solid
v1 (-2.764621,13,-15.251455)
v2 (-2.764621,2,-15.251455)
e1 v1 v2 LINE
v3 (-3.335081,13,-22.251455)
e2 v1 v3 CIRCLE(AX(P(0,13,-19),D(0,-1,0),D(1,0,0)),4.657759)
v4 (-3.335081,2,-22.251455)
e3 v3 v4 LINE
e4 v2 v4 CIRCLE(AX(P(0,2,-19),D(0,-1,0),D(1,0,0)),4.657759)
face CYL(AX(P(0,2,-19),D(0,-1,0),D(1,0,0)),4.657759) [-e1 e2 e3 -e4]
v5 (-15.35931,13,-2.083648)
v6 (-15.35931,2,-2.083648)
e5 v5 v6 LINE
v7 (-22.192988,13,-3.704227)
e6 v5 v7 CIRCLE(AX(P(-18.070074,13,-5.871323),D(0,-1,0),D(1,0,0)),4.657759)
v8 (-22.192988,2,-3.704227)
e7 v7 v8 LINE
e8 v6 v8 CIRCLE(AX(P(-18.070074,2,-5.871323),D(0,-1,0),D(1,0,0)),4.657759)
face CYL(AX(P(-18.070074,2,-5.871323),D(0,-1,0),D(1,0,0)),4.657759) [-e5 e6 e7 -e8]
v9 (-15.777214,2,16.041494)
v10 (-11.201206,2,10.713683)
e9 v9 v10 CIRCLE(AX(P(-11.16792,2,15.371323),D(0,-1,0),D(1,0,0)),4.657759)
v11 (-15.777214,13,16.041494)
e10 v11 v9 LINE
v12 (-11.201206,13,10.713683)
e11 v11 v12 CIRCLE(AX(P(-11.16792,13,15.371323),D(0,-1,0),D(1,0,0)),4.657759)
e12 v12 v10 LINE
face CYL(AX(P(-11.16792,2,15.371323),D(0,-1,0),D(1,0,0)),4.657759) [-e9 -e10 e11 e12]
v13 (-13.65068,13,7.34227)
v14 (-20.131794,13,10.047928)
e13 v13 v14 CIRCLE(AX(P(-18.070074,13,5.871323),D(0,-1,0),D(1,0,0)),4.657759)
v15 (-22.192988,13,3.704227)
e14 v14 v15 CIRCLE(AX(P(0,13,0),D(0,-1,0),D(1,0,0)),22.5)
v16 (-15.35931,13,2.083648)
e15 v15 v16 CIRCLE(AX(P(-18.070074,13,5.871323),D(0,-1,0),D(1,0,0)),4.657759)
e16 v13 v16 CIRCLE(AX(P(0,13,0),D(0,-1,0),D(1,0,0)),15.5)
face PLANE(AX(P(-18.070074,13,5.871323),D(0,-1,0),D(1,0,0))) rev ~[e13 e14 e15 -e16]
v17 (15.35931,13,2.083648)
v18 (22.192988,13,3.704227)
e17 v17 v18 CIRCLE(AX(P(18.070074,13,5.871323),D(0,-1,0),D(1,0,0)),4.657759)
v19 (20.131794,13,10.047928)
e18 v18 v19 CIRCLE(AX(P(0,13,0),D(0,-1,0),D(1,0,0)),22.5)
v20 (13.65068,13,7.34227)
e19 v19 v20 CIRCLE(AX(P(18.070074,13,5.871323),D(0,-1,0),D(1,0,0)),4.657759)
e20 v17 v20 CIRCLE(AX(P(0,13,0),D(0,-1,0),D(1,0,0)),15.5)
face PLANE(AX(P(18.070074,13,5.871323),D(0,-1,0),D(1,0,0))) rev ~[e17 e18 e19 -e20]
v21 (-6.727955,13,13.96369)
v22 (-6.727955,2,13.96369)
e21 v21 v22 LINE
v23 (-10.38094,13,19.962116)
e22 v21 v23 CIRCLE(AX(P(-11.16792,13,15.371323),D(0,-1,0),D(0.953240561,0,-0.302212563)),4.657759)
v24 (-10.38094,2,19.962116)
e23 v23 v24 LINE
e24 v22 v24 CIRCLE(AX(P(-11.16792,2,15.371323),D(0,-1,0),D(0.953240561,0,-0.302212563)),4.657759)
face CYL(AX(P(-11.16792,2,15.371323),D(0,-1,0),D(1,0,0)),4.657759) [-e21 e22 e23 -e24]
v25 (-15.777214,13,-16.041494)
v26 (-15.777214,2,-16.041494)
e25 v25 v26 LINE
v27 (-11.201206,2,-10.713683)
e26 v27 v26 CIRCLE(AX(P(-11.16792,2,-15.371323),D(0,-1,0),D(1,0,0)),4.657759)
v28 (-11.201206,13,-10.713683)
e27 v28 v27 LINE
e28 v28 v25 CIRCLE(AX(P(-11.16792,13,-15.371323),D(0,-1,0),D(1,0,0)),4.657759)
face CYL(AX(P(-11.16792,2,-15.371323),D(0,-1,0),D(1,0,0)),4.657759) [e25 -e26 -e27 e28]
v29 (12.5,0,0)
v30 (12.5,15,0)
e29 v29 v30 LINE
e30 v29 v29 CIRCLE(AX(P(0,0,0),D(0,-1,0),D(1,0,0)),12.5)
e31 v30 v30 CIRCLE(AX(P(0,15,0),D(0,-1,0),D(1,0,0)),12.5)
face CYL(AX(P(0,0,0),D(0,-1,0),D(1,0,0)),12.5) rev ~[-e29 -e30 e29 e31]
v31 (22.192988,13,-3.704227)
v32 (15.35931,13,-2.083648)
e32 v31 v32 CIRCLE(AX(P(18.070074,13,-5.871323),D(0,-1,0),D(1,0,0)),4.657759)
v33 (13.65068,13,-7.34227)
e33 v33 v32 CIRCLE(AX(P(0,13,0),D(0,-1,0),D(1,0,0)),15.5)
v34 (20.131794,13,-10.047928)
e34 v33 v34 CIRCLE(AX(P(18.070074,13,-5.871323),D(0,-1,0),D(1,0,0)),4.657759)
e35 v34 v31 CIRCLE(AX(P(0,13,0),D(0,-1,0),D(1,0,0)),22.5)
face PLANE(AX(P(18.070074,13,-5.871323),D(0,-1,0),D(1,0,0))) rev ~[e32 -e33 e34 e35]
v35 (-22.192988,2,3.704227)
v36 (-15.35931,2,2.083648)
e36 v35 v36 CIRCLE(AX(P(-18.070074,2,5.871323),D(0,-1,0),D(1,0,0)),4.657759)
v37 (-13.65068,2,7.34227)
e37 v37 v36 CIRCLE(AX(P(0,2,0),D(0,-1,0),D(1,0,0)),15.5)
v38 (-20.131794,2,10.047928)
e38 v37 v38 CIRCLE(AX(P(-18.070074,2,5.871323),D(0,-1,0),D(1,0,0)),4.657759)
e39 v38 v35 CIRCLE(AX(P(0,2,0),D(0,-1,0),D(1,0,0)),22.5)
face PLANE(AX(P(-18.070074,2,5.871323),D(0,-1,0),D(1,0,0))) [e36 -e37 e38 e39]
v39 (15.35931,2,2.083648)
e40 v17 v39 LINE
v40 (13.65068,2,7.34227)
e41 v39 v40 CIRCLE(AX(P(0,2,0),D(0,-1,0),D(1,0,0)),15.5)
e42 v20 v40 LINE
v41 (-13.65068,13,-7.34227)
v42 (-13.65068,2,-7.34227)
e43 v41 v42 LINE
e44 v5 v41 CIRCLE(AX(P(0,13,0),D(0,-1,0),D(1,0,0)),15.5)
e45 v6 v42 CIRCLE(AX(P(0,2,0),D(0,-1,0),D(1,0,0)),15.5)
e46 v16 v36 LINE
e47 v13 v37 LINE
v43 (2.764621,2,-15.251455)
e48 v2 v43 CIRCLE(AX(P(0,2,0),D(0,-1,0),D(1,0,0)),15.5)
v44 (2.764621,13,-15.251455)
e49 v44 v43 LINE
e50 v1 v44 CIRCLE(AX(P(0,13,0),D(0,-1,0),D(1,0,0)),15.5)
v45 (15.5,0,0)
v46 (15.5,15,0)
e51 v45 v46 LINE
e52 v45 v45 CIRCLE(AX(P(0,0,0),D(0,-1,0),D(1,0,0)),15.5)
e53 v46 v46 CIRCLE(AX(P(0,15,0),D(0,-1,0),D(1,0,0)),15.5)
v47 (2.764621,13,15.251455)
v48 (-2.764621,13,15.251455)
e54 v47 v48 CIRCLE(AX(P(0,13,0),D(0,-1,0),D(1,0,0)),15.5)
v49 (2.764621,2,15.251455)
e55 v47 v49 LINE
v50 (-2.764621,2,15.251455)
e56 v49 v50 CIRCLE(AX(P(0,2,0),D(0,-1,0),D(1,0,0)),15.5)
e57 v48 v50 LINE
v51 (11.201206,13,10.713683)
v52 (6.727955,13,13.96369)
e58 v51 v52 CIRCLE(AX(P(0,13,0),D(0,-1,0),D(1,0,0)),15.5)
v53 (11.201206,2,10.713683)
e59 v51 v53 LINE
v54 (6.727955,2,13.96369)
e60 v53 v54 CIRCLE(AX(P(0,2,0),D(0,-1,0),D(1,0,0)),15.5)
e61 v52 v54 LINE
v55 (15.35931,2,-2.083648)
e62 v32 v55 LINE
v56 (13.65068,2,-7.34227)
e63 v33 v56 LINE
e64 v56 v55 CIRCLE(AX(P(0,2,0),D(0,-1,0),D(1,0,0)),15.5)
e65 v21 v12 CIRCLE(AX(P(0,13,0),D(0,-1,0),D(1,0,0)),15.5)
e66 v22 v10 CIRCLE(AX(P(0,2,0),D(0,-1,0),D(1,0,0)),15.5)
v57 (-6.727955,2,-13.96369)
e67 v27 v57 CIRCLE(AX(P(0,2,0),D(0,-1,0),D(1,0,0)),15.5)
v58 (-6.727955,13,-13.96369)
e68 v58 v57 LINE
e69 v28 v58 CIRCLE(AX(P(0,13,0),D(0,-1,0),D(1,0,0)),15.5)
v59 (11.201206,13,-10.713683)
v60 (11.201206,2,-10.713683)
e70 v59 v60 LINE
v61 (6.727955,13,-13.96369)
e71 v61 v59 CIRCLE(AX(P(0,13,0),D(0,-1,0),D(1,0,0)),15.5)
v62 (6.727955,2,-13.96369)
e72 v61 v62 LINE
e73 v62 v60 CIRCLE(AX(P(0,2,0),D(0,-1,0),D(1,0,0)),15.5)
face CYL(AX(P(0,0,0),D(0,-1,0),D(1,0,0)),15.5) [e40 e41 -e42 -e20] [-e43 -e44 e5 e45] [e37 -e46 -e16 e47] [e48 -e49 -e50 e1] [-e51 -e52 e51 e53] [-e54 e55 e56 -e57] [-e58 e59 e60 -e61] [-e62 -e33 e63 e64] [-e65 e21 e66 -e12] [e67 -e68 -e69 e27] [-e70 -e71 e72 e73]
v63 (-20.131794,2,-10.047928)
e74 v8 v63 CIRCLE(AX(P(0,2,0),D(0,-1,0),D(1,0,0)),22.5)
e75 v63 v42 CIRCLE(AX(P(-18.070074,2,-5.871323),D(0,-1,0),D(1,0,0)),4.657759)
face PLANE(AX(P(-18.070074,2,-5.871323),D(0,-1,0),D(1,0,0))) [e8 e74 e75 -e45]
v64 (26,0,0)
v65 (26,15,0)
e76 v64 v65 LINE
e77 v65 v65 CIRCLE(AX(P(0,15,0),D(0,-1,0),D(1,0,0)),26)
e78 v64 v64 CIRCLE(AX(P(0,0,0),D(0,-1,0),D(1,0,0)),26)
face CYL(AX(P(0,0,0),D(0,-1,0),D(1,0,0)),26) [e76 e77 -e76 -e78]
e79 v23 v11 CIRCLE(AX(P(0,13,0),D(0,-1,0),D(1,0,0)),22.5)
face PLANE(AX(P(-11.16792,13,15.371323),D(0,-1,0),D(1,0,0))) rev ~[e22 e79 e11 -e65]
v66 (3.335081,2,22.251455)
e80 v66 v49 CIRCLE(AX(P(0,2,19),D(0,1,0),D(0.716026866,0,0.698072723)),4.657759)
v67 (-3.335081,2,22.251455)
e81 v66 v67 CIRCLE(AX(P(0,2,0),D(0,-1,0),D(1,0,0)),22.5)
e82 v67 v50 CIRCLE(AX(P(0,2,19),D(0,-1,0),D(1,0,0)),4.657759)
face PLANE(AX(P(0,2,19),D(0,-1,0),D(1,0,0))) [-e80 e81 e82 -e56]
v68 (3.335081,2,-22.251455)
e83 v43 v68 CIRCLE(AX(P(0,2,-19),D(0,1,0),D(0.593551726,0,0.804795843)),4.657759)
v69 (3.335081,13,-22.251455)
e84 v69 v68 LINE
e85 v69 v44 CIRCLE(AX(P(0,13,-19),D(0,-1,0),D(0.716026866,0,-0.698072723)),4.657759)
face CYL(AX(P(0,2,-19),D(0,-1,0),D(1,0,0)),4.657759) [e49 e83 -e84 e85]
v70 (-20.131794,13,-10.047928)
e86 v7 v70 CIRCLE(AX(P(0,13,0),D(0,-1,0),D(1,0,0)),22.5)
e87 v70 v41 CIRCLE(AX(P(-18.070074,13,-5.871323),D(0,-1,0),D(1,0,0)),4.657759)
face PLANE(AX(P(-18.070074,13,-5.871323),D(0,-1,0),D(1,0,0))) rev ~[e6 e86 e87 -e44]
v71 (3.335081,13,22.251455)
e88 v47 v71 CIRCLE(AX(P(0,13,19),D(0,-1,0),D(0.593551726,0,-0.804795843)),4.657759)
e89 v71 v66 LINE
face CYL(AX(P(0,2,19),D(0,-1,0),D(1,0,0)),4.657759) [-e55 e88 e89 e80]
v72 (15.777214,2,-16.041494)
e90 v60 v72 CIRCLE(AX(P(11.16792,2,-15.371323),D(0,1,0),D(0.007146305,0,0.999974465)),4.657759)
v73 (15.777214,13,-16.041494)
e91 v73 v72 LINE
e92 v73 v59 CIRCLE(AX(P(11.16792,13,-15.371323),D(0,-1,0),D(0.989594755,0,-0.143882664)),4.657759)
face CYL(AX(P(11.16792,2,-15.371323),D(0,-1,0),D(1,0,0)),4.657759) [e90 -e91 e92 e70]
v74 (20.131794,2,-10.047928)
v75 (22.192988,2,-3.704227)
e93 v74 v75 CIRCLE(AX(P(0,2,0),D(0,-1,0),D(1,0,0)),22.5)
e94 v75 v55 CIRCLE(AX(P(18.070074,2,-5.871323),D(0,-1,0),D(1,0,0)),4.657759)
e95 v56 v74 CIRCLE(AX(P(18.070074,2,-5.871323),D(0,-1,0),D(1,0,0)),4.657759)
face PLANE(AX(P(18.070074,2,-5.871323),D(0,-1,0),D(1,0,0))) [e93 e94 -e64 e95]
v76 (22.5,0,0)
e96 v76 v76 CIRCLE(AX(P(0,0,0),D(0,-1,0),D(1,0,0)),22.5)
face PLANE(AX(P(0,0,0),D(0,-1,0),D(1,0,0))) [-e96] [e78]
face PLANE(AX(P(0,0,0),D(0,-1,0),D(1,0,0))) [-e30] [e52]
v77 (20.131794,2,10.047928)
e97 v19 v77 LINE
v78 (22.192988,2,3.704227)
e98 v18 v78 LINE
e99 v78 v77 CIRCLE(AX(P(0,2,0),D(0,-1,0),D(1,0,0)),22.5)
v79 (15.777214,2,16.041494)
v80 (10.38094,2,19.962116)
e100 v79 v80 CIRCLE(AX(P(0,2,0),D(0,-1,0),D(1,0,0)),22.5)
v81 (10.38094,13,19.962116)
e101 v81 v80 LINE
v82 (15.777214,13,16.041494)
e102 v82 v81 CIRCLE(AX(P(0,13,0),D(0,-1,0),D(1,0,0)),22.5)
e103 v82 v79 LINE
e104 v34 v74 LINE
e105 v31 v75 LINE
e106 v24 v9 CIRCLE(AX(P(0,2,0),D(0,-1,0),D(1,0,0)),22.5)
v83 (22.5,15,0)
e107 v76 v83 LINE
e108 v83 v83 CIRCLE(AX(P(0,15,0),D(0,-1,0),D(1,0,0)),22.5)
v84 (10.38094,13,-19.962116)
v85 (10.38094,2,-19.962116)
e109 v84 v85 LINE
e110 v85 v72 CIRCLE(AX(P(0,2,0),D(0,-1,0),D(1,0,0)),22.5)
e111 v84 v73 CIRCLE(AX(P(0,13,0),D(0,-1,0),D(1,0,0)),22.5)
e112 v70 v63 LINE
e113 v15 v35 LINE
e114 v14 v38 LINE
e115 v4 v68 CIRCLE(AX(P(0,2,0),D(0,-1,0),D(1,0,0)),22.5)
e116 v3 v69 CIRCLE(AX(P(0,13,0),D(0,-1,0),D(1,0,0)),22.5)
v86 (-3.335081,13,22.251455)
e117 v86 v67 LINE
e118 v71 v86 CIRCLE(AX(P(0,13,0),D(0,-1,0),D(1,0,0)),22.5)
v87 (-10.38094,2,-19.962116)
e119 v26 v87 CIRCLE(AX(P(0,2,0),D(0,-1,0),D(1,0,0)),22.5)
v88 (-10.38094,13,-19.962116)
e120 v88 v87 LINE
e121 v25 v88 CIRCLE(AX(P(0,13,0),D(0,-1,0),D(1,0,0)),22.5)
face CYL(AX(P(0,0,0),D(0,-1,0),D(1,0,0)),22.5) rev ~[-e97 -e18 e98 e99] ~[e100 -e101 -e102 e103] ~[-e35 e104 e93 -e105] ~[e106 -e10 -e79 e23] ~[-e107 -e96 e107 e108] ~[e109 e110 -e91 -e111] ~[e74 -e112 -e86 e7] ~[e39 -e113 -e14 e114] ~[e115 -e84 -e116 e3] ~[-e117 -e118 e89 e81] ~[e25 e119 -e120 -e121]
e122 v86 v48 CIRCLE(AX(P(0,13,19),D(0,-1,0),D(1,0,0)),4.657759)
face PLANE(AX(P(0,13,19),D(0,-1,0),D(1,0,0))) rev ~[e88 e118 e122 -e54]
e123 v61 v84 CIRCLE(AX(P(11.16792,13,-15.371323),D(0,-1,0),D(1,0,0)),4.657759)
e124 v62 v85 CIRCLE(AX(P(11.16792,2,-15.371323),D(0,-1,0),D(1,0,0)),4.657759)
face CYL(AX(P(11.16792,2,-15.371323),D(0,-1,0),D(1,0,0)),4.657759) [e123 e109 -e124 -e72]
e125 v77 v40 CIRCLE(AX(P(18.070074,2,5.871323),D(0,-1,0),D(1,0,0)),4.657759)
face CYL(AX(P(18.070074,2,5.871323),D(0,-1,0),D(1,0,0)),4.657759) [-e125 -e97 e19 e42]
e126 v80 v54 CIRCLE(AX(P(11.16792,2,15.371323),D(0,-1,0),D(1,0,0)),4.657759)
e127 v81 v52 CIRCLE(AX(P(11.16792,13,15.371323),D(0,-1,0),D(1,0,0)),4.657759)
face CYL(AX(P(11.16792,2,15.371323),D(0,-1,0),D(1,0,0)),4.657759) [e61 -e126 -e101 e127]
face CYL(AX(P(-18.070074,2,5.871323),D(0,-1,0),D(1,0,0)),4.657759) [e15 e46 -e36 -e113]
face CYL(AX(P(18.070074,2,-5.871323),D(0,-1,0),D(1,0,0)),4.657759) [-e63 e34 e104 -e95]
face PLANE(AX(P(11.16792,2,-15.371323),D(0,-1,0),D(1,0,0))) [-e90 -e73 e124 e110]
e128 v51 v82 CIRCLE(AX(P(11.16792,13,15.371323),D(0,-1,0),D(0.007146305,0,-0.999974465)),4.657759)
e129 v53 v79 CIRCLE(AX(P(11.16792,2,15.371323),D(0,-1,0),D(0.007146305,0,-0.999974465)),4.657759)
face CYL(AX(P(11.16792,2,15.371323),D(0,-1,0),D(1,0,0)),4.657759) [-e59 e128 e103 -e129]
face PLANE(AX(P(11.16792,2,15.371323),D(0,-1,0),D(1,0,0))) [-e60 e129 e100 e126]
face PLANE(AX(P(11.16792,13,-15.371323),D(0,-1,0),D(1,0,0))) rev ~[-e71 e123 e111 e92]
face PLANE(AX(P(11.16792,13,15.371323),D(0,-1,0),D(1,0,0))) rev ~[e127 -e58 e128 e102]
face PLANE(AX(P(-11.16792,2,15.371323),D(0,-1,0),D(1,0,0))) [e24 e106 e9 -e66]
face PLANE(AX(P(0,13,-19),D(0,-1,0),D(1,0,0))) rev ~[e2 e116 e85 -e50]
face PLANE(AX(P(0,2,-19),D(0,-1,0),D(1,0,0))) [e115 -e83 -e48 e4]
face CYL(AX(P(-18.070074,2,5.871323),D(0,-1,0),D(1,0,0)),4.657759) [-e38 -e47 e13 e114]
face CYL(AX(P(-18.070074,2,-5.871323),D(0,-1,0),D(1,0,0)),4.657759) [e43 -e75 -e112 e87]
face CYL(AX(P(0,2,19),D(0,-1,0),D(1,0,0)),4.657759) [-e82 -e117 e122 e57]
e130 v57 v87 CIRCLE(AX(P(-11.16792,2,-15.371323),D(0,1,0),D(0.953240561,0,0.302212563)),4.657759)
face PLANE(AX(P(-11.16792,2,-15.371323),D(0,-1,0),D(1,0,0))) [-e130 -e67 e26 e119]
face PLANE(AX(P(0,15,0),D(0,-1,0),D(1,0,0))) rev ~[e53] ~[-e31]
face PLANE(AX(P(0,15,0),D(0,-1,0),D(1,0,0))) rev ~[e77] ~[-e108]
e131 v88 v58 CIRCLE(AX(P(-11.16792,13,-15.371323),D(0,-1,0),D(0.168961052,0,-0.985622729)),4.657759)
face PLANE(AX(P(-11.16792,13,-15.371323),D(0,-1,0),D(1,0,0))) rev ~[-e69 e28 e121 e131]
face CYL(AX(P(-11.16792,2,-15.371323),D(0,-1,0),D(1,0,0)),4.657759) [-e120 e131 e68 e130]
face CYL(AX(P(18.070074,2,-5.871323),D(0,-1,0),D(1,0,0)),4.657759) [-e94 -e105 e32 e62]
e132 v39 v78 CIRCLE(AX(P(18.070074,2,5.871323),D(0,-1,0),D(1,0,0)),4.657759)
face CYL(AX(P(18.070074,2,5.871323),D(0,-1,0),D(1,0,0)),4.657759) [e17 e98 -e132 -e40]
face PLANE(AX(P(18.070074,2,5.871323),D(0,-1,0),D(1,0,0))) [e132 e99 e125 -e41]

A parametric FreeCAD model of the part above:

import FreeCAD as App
import Part
import Sketcher

doc = App.newDocument("Part")
params = doc.addObject("Spreadsheet::Sheet", "Params")
for row, (alias, value) in enumerate([
    ("sketch1_diameter", "31 mm"),
    ("sketch1_diameter2", "25 mm"),
    ("pad1_length", "15 mm"),
    ("sketch2_diameter", "52 mm"),
    ("sketch2_diameter2", "45 mm"),
    ("pad2_length", "15 mm"),
    ("pad3_length", "11 mm"),
], start=1):
    params.set(f"A{row}", alias)
    params.set(f"B{row}", "=" + value)
    params.setAlias(f"B{row}", alias)

body = doc.addObject("PartDesign::Body", "Body")

# Sketch on XZ plane
sketch1 = body.newObject("Sketcher::SketchObject", "Sketch")
sketch1.AttachmentSupport = (doc.getObject("XZ_Plane"), [""])
sketch1.MapMode = "FlatFace"
sketch1.addGeometry([
    Part.Circle(App.Vector(0, 0, 0), App.Vector(0, 0, 1), 16),
    Part.Circle(App.Vector(0, 0, 0), App.Vector(0, 0, 1), 12),
], False)
sketch1.addConstraint([
    Sketcher.Constraint("Coincident", 0, 3, -1, 1),
    Sketcher.Constraint("Coincident", 1, 3, -1, 1),
    Sketcher.Constraint("Diameter", 0, 31.0),
    Sketcher.Constraint("Diameter", 1, 25.0),
])
sketch1.setExpression("Constraints[2]", "Params.sketch1_diameter")
sketch1.setExpression("Constraints[3]", "Params.sketch1_diameter2")
pad1 = body.newObject("PartDesign::Pad", "Pad")
pad1.Profile = sketch1
pad1.setExpression("Length", "Params.pad1_length")
pad1.Reversed = True
body2 = doc.addObject("PartDesign::Body", "Body001")

# Sketch on XZ plane
sketch2 = body2.newObject("Sketcher::SketchObject", "Sketch001")
sketch2.AttachmentSupport = (doc.getObject("XZ_Plane001"), [""])
sketch2.MapMode = "FlatFace"
sketch2.addGeometry([
    Part.Circle(App.Vector(0, 0, 0), App.Vector(0, 0, 1), 26),
    Part.Circle(App.Vector(0, 0, 0), App.Vector(0, 0, 1), 22),
], False)
sketch2.addConstraint([
    Sketcher.Constraint("Coincident", 0, 3, -1, 1),
    Sketcher.Constraint("Coincident", 1, 3, -1, 1),
    Sketcher.Constraint("Diameter", 0, 52.0),
    Sketcher.Constraint("Diameter", 1, 45.0),
])
sketch2.setExpression("Constraints[2]", "Params.sketch2_diameter")
sketch2.setExpression("Constraints[3]", "Params.sketch2_diameter2")
pad2 = body2.newObject("PartDesign::Pad", "Pad001")
pad2.Profile = sketch2
pad2.setExpression("Length", "Params.pad2_length")
pad2.Reversed = True
body.AllowCompound = True
doc.recompute()

boolean = body.newObject("PartDesign::Boolean", "Boolean")
boolean.Type = "Fuse"
boolean.addObjects([body2])

# Sketch on XZ plane
sketch3 = body.newObject("Sketcher::SketchObject", "Sketch002")
sketch3.AttachmentSupport = (doc.getObject("XZ_Plane"), [""])
sketch3.MapMode = "FlatFace"
sketch3.AttachmentOffset = App.Placement(App.Vector(0, 0, -2), App.Rotation())
sketch3.addGeometry([
    Part.Circle(App.Vector(0, 19, 0), App.Vector(0, 0, 1), 4.7),  # 0
    Part.Circle(App.Vector(-11.2, 15.4, 0), App.Vector(0, 0, 1), 4.7),  # 1
    Part.Circle(App.Vector(-18.1, 5.9, 0), App.Vector(0, 0, 1), 4.7),  # 2
    Part.Circle(App.Vector(-18.1, -5.9, 0), App.Vector(0, 0, 1), 4.7),  # 3
    Part.Circle(App.Vector(-11.2, -15.4, 0), App.Vector(0, 0, 1), 4.7),  # 4
    Part.Circle(App.Vector(0, -19, 0), App.Vector(0, 0, 1), 4.7),  # 5
    Part.Circle(App.Vector(11.2, -15.4, 0), App.Vector(0, 0, 1), 4.7),  # 6
    Part.Circle(App.Vector(18.1, -5.9, 0), App.Vector(0, 0, 1), 4.7),  # 7
    Part.Circle(App.Vector(18.1, 5.9, 0), App.Vector(0, 0, 1), 4.7),  # 8
    Part.Circle(App.Vector(11.2, 15.4, 0), App.Vector(0, 0, 1), 4.7),  # 9
], False)
sketch3.addConstraint([
    Sketcher.Constraint("Equal", 0, 1),
    Sketcher.Constraint("Equal", 1, 2),
    Sketcher.Constraint("Equal", 2, 3),
    Sketcher.Constraint("Equal", 3, 4),
    Sketcher.Constraint("Equal", 4, 5),
    Sketcher.Constraint("Equal", 5, 6),
    Sketcher.Constraint("Equal", 6, 7),
    Sketcher.Constraint("Equal", 7, 8),
    Sketcher.Constraint("Equal", 8, 9),
    Sketcher.Constraint("Symmetric", 0, 3, 5, 3, -1, 1),
    Sketcher.Constraint("Symmetric", 1, 3, 6, 3, -1, 1),
    Sketcher.Constraint("Symmetric", 2, 3, 7, 3, -1, 1),
    Sketcher.Constraint("Symmetric", 3, 3, 8, 3, -1, 1),
    Sketcher.Constraint("Symmetric", 4, 3, 9, 3, -1, 1),
    Sketcher.Constraint("Symmetric", 4, 3, 6, 3, -2),
    Sketcher.Constraint("Symmetric", 3, 3, 7, 3, -2),
    Sketcher.Constraint("PointOnObject", 0, 3, -2),
    Sketcher.Constraint("DistanceY", -1, 1, 0, 3, 19.0),
    Sketcher.Constraint("DistanceY", 2, 3, 1, 3, 9.5),
    Sketcher.Constraint("Diameter", 0, 9.315519),
    Sketcher.Constraint("DistanceX", 1, 3, -1, 1, 11.16792),
    Sketcher.Constraint("DistanceY", -1, 1, 1, 3, 15.371323),
    Sketcher.Constraint("DistanceX", 2, 3, -1, 1, 18.070074),
])
pad3 = body.newObject("PartDesign::Pad", "Pad002")
pad3.Profile = sketch3
pad3.setExpression("Length", "Params.pad3_length")
pad3.Reversed = True

doc.recompute()
